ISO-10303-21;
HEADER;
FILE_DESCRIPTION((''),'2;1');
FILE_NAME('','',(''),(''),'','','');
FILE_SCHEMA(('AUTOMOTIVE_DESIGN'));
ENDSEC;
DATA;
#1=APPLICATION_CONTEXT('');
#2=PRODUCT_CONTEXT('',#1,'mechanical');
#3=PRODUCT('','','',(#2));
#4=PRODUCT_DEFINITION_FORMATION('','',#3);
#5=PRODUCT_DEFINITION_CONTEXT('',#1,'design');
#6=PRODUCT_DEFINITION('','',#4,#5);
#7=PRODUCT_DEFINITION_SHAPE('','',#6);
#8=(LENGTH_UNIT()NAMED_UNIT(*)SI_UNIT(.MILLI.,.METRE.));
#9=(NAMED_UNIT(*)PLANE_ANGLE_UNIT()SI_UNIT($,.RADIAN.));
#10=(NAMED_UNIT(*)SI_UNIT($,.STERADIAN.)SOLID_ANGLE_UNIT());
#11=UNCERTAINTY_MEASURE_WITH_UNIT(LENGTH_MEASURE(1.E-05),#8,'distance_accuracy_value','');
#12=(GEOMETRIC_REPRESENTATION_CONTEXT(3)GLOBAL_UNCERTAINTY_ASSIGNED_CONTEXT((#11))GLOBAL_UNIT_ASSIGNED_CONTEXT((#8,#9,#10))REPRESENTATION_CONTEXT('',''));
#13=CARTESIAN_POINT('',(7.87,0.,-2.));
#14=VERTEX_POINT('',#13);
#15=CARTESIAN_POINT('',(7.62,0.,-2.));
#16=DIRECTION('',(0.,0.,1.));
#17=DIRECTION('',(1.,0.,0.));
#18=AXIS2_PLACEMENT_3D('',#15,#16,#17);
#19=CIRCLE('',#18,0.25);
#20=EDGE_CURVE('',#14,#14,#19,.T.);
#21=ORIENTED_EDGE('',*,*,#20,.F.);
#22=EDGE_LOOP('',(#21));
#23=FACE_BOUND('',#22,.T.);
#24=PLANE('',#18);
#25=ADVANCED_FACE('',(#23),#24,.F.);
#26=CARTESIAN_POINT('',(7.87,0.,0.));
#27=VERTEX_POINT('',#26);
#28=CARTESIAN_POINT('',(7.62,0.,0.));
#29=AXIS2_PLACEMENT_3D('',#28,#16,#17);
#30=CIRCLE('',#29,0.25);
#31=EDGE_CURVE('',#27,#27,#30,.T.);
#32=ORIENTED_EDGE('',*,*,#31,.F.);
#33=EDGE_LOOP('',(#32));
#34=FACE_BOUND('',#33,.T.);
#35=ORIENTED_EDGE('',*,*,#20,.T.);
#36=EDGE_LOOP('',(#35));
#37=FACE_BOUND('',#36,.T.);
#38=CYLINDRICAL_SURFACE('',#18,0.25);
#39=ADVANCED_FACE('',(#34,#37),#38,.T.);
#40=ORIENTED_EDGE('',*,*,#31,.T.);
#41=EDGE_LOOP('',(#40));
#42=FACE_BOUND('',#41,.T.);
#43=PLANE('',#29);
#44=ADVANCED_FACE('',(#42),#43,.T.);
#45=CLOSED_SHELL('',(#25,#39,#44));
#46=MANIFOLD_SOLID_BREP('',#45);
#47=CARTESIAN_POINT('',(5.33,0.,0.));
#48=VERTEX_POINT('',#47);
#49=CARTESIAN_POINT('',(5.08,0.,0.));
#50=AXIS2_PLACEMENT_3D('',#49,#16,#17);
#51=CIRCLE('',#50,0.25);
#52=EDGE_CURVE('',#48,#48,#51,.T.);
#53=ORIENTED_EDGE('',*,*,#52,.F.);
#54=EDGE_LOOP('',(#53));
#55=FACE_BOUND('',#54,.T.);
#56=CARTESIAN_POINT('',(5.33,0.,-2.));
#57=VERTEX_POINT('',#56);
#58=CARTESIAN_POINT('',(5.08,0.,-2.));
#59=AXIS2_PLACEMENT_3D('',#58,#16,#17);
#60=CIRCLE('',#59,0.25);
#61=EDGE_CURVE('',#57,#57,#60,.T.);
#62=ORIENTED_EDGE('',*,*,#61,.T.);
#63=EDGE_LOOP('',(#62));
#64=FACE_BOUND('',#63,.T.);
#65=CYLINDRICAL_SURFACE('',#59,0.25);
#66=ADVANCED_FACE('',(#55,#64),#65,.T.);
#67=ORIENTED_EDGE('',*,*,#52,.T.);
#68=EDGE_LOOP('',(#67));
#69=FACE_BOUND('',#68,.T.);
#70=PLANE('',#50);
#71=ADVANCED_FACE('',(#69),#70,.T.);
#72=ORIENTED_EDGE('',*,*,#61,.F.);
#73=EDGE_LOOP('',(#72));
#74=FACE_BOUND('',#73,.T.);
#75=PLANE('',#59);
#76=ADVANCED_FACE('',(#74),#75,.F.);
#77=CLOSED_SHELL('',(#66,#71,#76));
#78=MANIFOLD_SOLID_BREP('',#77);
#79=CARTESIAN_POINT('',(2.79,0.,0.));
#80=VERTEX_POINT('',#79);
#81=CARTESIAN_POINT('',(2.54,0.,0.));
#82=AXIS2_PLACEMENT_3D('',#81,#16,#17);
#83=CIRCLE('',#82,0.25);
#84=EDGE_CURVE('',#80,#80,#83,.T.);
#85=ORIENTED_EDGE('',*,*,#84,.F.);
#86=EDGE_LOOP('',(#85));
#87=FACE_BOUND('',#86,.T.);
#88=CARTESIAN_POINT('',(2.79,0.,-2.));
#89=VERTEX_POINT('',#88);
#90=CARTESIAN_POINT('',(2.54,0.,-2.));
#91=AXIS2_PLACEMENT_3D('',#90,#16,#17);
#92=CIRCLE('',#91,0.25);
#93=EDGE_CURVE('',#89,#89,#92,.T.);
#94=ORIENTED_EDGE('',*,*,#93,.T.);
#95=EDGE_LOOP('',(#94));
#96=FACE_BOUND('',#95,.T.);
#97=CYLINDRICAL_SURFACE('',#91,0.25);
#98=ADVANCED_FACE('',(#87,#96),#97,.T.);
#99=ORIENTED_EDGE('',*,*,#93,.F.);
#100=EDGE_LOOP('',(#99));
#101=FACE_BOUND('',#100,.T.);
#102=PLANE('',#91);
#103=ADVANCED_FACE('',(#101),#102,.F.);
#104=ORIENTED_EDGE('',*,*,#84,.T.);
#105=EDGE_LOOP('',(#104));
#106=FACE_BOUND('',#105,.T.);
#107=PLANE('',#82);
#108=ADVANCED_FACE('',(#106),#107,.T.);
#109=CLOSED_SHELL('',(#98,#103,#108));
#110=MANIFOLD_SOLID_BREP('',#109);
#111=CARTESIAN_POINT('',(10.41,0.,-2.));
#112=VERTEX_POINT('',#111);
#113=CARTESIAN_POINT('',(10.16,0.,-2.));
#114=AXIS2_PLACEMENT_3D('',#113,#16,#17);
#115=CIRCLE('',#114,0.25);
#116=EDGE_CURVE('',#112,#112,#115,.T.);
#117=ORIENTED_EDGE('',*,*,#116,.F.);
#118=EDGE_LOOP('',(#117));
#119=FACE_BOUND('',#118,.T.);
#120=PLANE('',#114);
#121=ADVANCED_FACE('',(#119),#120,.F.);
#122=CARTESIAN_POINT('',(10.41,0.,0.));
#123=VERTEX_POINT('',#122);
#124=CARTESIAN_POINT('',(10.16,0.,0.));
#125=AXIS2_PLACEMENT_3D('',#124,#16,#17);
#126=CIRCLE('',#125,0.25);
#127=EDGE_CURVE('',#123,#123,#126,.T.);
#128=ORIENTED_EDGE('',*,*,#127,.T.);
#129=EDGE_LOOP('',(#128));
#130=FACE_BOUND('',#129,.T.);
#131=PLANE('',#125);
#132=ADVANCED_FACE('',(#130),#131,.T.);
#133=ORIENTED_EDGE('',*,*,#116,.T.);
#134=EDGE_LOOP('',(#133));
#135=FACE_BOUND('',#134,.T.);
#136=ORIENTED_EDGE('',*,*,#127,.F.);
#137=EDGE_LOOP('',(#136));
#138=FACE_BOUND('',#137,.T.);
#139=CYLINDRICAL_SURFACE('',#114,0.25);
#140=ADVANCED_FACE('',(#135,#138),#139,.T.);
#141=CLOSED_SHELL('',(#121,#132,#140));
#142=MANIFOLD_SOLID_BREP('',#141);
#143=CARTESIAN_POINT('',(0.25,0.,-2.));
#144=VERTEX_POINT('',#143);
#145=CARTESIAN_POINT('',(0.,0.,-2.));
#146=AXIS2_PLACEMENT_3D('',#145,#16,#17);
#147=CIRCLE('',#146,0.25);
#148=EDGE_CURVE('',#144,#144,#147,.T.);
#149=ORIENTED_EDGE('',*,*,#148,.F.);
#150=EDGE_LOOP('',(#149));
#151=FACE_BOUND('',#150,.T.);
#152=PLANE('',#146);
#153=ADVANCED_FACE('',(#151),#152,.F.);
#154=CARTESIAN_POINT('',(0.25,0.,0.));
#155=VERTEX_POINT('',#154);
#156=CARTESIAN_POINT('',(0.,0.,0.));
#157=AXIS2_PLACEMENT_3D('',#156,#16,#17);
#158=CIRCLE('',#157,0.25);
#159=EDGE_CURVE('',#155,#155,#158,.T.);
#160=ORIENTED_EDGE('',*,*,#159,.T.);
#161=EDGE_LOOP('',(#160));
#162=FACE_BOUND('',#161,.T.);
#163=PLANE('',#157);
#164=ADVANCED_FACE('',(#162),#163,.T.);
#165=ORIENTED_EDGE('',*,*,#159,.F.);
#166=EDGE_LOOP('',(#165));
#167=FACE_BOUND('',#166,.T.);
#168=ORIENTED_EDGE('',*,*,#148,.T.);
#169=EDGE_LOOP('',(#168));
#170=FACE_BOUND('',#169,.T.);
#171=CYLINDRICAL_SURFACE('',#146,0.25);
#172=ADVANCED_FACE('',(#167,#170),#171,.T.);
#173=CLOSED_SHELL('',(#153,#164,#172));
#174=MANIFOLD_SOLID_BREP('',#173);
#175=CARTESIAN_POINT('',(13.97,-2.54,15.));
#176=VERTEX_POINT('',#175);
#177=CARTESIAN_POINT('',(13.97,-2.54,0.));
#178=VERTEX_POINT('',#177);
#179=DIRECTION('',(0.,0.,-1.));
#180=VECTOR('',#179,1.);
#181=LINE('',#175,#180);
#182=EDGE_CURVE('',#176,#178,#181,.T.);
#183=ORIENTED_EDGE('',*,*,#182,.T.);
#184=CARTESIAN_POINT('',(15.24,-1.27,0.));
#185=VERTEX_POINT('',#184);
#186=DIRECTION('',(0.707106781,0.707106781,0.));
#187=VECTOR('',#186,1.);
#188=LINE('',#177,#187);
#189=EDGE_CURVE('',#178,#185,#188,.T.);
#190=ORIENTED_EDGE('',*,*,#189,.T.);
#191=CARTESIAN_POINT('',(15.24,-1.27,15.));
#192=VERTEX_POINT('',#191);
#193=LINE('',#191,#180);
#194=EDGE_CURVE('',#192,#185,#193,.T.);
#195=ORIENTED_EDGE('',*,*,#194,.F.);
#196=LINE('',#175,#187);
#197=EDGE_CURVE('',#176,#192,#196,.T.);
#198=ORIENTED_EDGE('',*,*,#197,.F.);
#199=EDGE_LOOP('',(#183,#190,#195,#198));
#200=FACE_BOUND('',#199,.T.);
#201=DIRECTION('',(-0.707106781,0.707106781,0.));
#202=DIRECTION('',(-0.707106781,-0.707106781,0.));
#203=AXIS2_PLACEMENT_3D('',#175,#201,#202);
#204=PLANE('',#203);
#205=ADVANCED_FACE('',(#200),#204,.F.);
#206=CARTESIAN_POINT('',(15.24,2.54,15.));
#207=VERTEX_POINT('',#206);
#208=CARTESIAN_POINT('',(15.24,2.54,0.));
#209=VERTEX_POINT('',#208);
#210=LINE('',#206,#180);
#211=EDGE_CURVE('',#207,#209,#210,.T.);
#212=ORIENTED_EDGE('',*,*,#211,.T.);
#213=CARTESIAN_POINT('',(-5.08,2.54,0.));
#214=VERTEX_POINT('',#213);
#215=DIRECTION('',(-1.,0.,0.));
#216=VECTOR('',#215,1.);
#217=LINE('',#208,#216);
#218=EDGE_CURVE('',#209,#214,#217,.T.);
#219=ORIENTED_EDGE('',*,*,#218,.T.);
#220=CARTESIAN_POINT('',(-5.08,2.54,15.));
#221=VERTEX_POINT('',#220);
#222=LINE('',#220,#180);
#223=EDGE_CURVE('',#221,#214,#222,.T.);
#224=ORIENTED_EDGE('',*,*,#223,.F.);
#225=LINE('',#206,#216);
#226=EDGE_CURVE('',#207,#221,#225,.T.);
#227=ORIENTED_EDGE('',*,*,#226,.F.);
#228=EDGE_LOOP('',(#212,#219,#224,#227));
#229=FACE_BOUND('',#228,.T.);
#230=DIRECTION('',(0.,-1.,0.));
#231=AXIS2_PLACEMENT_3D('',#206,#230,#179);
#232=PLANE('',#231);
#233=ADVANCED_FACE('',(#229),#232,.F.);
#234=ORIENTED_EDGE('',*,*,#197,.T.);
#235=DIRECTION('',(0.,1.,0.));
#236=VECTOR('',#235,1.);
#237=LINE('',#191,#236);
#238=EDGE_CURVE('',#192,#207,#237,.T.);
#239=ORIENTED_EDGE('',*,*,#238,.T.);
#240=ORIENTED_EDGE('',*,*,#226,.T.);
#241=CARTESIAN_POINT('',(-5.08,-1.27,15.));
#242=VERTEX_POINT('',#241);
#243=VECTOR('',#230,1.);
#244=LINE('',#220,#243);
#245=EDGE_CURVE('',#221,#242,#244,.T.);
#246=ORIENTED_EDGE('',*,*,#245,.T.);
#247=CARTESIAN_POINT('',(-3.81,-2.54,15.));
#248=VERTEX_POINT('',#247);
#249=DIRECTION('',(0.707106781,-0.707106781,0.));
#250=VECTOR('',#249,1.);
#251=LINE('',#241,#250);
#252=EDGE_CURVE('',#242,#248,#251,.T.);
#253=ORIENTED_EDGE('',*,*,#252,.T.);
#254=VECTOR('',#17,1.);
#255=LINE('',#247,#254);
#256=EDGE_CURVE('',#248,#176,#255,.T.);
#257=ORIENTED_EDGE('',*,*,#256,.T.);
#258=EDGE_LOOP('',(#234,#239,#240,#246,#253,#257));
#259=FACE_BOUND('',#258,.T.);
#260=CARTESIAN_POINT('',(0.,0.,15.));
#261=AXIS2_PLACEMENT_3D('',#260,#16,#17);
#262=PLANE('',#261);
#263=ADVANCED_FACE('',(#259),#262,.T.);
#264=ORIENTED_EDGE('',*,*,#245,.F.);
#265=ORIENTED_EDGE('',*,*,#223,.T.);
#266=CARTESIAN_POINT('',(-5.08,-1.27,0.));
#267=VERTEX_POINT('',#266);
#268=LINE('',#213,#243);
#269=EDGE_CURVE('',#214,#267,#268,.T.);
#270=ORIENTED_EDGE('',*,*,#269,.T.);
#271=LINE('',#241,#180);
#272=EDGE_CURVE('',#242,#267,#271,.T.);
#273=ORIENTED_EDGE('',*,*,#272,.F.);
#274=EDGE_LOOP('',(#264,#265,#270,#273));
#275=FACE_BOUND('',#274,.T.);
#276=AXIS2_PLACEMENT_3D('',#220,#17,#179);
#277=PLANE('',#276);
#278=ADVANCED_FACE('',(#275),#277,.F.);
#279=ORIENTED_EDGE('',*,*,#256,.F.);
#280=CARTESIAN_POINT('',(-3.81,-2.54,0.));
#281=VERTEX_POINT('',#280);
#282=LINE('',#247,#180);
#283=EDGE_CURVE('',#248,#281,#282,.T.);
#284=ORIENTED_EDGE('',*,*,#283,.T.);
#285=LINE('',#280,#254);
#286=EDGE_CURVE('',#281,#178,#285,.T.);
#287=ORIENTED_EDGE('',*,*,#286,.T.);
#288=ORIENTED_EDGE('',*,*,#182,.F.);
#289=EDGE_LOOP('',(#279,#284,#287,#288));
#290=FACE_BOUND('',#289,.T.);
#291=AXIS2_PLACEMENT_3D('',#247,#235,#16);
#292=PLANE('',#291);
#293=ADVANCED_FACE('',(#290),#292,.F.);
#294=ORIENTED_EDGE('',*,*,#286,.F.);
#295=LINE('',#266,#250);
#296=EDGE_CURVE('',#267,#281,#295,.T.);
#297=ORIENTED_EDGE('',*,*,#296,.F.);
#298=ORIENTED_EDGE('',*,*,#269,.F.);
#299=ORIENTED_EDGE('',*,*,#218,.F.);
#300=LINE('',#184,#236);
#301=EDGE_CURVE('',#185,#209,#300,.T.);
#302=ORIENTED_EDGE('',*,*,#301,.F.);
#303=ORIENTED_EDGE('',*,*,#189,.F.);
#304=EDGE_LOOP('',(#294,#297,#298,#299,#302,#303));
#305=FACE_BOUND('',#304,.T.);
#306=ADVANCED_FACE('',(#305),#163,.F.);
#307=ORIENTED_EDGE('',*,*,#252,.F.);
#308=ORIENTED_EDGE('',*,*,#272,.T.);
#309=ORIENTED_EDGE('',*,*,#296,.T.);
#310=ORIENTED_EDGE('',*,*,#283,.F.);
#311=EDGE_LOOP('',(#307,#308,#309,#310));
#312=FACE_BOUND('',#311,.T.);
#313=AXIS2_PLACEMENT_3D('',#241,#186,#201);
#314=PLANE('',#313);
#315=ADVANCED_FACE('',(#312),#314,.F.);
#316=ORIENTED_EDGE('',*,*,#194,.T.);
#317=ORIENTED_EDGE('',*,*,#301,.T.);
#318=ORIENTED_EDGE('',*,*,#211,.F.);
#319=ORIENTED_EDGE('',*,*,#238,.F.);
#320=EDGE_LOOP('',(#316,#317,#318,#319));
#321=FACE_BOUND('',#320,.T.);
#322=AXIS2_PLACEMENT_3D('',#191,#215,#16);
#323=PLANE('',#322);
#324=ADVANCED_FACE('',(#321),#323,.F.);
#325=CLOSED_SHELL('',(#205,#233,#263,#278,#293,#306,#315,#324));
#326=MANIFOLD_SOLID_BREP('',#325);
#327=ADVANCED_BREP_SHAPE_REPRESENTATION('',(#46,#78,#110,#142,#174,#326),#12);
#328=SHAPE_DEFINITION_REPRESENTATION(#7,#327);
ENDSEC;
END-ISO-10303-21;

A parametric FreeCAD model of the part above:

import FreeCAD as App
import Part
import Sketcher

doc = App.newDocument("Part")
params = doc.addObject("Spreadsheet::Sheet", "Params")
for row, (alias, value) in enumerate([
    ("sketch1_width", "17.78 mm"),
    ("sketch1_width2", "20.32 mm"),
    ("sketch1_height", "3.81 mm"),
    ("pad1_length", "15 mm"),
    ("sketch2_diameter", "0.5 mm"),
    ("pad2_length", "2 mm"),
    ("sketch3_diameter", "0.5 mm"),
    ("pad3_length", "2 mm"),
    ("sketch4_diameter", "0.5 mm"),
    ("pad4_length", "2 mm"),
    ("sketch5_diameter", "0.5 mm"),
    ("pad5_length", "2 mm"),
    ("sketch6_diameter", "0.5 mm"),
    ("pad6_length", "2 mm"),
], start=1):
    params.set(f"A{row}", alias)
    params.set(f"B{row}", "=" + value)
    params.setAlias(f"B{row}", alias)

body = doc.addObject("PartDesign::Body", "Body")

sketch1 = body.newObject("Sketcher::SketchObject", "Sketch")
sketch1.AttachmentSupport = (doc.getObject("XY_Plane"), [""])
sketch1.MapMode = "FlatFace"
sketch1.addGeometry([
    Part.LineSegment(App.Vector(-5.08, 2.54, 0), App.Vector(-5.08, -1.27, 0)),
    Part.LineSegment(App.Vector(-5.08, -1.27, 0), App.Vector(-3.81, -2.54, 0)),
    Part.LineSegment(App.Vector(-3.81, -2.54, 0), App.Vector(13.97, -2.54, 0)),
    Part.LineSegment(App.Vector(13.97, -2.54, 0), App.Vector(15.24, -1.27, 0)),
    Part.LineSegment(App.Vector(15.24, -1.27, 0), App.Vector(15.24, 2.54, 0)),
    Part.LineSegment(App.Vector(15.24, 2.54, 0), App.Vector(-5.08, 2.54, 0)),
], False)
sketch1.addConstraint([
    Sketcher.Constraint("Coincident", 0, 2, 1, 1),
    Sketcher.Constraint("Coincident", 1, 2, 2, 1),
    Sketcher.Constraint("Coincident", 2, 2, 3, 1),
    Sketcher.Constraint("Coincident", 3, 2, 4, 1),
    Sketcher.Constraint("Coincident", 4, 2, 5, 1),
    Sketcher.Constraint("Coincident", 5, 2, 0, 1),
    Sketcher.Constraint("Vertical", 0),
    Sketcher.Constraint("Horizontal", 2),
    Sketcher.Constraint("Vertical", 4),
    Sketcher.Constraint("Horizontal", 5),
    Sketcher.Constraint("Perpendicular", 1, 3),
    Sketcher.Constraint("Horizontal", 0, 2, 3, 2),
    Sketcher.Constraint("Equal", 1, 3),
    Sketcher.Constraint("DistanceX", 2, 1, 2, 2, 17.78),
    Sketcher.Constraint("DistanceX", 5, 2, 5, 1, 20.32),
    Sketcher.Constraint("DistanceY", 0, 2, 0, 1, 3.81),
    Sketcher.Constraint("DistanceX", 0, 2, -1, 1, 5.08),
    Sketcher.Constraint("DistanceY", 0, 2, -1, 1, 1.27),
])
sketch1.setExpression("Constraints[13]", "Params.sketch1_width")
sketch1.setExpression("Constraints[14]", "Params.sketch1_width2")
sketch1.setExpression("Constraints[15]", "Params.sketch1_height")
pad1 = body.newObject("PartDesign::Pad", "Pad")
pad1.Profile = sketch1
pad1.setExpression("Length", "Params.pad1_length")
body2 = doc.addObject("PartDesign::Body", "Body001")

sketch2 = body2.newObject("Sketcher::SketchObject", "Sketch001")
sketch2.AttachmentSupport = (doc.getObject("XY_Plane001"), [""])
sketch2.MapMode = "FlatFace"
sketch2.addGeometry(Part.Circle(App.Vector(0, 0, 0), App.Vector(0, 0, 1), 0.25), False)
sketch2.addConstraint([
    Sketcher.Constraint("Coincident", 0, 3, -1, 1),
    Sketcher.Constraint("Diameter", 0, 0.5),
])
sketch2.setExpression("Constraints[1]", "Params.sketch2_diameter")
pad2 = body2.newObject("PartDesign::Pad", "Pad001")
pad2.Profile = sketch2
pad2.setExpression("Length", "Params.pad2_length")
pad2.Reversed = True
body3 = doc.addObject("PartDesign::Body", "Body002")

sketch3 = body3.newObject("Sketcher::SketchObject", "Sketch002")
sketch3.AttachmentSupport = (doc.getObject("XY_Plane002"), [""])
sketch3.MapMode = "FlatFace"
sketch3.addGeometry(Part.Circle(App.Vector(2.54, 0, 0), App.Vector(0, 0, 1), 0.25), False)
sketch3.addConstraint([
    Sketcher.Constraint("PointOnObject", 0, 3, -1),
    Sketcher.Constraint("Diameter", 0, 0.5),
    Sketcher.Constraint("DistanceX", -1, 1, 0, 3, 2.54),
])
sketch3.setExpression("Constraints[1]", "Params.sketch3_diameter")
pad3 = body3.newObject("PartDesign::Pad", "Pad002")
pad3.Profile = sketch3
pad3.setExpression("Length", "Params.pad3_length")
pad3.Reversed = True
body4 = doc.addObject("PartDesign::Body", "Body003")

sketch4 = body4.newObject("Sketcher::SketchObject", "Sketch003")
sketch4.AttachmentSupport = (doc.getObject("XY_Plane003"), [""])
sketch4.MapMode = "FlatFace"
sketch4.addGeometry(Part.Circle(App.Vector(5.08, 0, 0), App.Vector(0, 0, 1), 0.25), False)
sketch4.addConstraint([
    Sketcher.Constraint("PointOnObject", 0, 3, -1),
    Sketcher.Constraint("Diameter", 0, 0.5),
    Sketcher.Constraint("DistanceX", -1, 1, 0, 3, 5.08),
])
sketch4.setExpression("Constraints[1]", "Params.sketch4_diameter")
pad4 = body4.newObject("PartDesign::Pad", "Pad003")
pad4.Profile = sketch4
pad4.setExpression("Length", "Params.pad4_length")
pad4.Reversed = True
body5 = doc.addObject("PartDesign::Body", "Body004")

sketch5 = body5.newObject("Sketcher::SketchObject", "Sketch004")
sketch5.AttachmentSupport = (doc.getObject("XY_Plane004"), [""])
sketch5.MapMode = "FlatFace"
sketch5.addGeometry(Part.Circle(App.Vector(7.62, 0, 0), App.Vector(0, 0, 1), 0.25), False)
sketch5.addConstraint([
    Sketcher.Constraint("PointOnObject", 0, 3, -1),
    Sketcher.Constraint("Diameter", 0, 0.5),
    Sketcher.Constraint("DistanceX", -1, 1, 0, 3, 7.62),
])
sketch5.setExpression("Constraints[1]", "Params.sketch5_diameter")
pad5 = body5.newObject("PartDesign::Pad", "Pad004")
pad5.Profile = sketch5
pad5.setExpression("Length", "Params.pad5_length")
pad5.Reversed = True
body6 = doc.addObject("PartDesign::Body", "Body005")

sketch6 = body6.newObject("Sketcher::SketchObject", "Sketch005")
sketch6.AttachmentSupport = (doc.getObject("XY_Plane005"), [""])
sketch6.MapMode = "FlatFace"
sketch6.addGeometry(Part.Circle(App.Vector(10.16, 0, 0), App.Vector(0, 0, 1), 0.25), False)
sketch6.addConstraint([
    Sketcher.Constraint("PointOnObject", 0, 3, -1),
    Sketcher.Constraint("Diameter", 0, 0.5),
    Sketcher.Constraint("DistanceX", -1, 1, 0, 3, 10.16),
])
sketch6.setExpression("Constraints[1]", "Params.sketch6_diameter")
pad6 = body6.newObject("PartDesign::Pad", "Pad005")
pad6.Profile = sketch6
pad6.setExpression("Length", "Params.pad6_length")
pad6.Reversed = True

doc.recompute()
